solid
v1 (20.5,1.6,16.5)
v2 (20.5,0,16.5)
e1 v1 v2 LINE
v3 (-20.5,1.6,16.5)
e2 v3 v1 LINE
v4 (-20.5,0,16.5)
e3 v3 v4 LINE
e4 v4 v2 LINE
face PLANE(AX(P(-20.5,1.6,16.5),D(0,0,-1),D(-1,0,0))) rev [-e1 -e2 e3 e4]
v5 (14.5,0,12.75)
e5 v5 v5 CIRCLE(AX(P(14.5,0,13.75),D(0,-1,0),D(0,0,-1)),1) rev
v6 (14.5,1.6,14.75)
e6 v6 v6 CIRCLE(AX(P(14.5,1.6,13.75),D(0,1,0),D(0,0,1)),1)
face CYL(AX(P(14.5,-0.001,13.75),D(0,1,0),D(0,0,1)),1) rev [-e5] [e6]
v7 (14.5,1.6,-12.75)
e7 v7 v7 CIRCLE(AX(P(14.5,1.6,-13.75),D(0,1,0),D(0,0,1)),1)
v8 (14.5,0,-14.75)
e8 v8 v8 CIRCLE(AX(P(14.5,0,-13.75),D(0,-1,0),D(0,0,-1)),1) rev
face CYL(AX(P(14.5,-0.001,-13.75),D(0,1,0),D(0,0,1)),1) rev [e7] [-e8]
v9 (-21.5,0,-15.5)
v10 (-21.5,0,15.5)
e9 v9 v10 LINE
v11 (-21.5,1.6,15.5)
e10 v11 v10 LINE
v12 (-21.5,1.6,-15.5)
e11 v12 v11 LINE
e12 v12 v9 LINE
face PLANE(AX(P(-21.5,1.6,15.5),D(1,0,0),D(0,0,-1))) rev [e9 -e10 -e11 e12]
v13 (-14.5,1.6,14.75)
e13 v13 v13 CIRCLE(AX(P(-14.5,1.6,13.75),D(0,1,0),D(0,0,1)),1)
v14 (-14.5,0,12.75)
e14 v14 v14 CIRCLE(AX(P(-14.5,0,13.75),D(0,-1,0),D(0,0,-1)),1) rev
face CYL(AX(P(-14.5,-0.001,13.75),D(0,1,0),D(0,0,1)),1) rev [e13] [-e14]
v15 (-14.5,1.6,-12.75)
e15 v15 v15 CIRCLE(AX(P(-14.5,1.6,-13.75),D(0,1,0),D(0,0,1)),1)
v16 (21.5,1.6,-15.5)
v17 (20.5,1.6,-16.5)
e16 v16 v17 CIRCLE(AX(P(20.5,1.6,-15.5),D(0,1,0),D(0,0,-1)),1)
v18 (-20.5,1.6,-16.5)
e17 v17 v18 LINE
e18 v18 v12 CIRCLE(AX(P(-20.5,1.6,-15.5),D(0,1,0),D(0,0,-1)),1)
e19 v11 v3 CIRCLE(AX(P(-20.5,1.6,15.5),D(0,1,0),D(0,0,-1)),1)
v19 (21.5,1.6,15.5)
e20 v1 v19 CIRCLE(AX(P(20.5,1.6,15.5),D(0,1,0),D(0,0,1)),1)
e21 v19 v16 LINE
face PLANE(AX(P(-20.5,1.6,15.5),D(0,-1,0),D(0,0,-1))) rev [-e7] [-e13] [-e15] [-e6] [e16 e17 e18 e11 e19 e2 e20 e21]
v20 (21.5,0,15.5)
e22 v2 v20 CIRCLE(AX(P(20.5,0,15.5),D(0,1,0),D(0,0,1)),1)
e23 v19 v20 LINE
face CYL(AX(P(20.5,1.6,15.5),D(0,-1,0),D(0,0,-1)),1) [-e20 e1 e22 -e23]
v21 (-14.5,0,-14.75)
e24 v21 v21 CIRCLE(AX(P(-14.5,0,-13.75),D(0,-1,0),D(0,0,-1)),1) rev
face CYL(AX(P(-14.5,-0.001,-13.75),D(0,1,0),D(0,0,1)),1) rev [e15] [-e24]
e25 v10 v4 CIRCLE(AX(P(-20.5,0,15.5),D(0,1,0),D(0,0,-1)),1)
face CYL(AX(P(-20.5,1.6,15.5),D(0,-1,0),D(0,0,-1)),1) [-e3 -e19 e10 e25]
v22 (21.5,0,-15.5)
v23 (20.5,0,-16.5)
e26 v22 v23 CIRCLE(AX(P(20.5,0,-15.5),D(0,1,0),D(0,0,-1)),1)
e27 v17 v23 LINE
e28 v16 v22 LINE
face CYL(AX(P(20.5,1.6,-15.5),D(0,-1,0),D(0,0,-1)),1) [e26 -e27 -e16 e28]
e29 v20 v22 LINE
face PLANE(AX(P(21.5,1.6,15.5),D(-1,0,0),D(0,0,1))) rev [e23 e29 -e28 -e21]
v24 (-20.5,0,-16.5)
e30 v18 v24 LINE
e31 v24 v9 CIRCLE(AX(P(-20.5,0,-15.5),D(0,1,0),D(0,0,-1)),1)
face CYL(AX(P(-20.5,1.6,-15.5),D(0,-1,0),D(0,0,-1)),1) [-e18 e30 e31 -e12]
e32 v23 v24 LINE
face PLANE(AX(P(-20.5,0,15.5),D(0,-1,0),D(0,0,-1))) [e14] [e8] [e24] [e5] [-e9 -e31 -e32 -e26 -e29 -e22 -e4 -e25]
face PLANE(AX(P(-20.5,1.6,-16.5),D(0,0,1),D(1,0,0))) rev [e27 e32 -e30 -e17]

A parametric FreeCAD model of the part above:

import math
import FreeCAD as App
import Part
import Sketcher

doc = App.newDocument("Part")
body = doc.addObject("PartDesign::Body", "Body")

# Sketch on XZ plane
sketch1 = body.newObject("Sketcher::SketchObject", "Sketch")
sketch1.AttachmentSupport = (doc.getObject("XZ_Plane"), [""])
sketch1.MapMode = "FlatFace"
sketch1.addGeometry([
    Part.LineSegment(App.Vector(-20.5, 16.5, 0), App.Vector(20.5, 16.5, 0)),  # 0
    Part.ArcOfCircle(Part.Circle(App.Vector(20.5, 15.5, 0), App.Vector(0, 0, 1), 1), math.radians(0), math.radians(90)),  # 1
    Part.LineSegment(App.Vector(21.5, 15.5, 0), App.Vector(21.5, -15.5, 0)),  # 2
    Part.ArcOfCircle(Part.Circle(App.Vector(20.5, -15.5, 0), App.Vector(0, 0, 1), 1), math.radians(-90), math.radians(0)),  # 3
    Part.LineSegment(App.Vector(20.5, -16.5, 0), App.Vector(-20.5, -16.5, 0)),  # 4
    Part.ArcOfCircle(Part.Circle(App.Vector(-20.5, -15.5, 0), App.Vector(0, 0, 1), 1), math.radians(-180), math.radians(-90)),  # 5
    Part.LineSegment(App.Vector(-21.5, -15.5, 0), App.Vector(-21.5, 15.5, 0)),  # 6
    Part.ArcOfCircle(Part.Circle(App.Vector(-20.5, 15.5, 0), App.Vector(0, 0, 1), 1), math.radians(90), math.radians(180)),  # 7
], False)
sketch1.addConstraint([
    Sketcher.Constraint("Tangent", 0, 2, 1, 2),
    Sketcher.Constraint("Tangent", 1, 1, 2, 1),
    Sketcher.Constraint("Tangent", 2, 2, 3, 2),
    Sketcher.Constraint("Tangent", 3, 1, 4, 1),
    Sketcher.Constraint("Tangent", 4, 2, 5, 2),
    Sketcher.Constraint("Tangent", 5, 1, 6, 1),
    Sketcher.Constraint("Tangent", 6, 2, 7, 2),
    Sketcher.Constraint("Tangent", 7, 1, 0, 1),
    Sketcher.Constraint("Horizontal", 0),
    Sketcher.Constraint("Vertical", 2),
    Sketcher.Constraint("Horizontal", 4),
    Sketcher.Constraint("Vertical", 6),
    Sketcher.Constraint("Equal", 1, 3),
    Sketcher.Constraint("Equal", 3, 5),
    Sketcher.Constraint("Equal", 5, 7),
    Sketcher.Constraint("Symmetric", 1, 3, 5, 3, -1, 1),
    Sketcher.Constraint("Radius", 1, 1.0),
    Sketcher.Constraint("DistanceX", 0, 1, 0, 2, 41.0),
    Sketcher.Constraint("DistanceY", 2, 2, 2, 1, 31.0),
])
pad1 = body.newObject("PartDesign::Pad", "Pad")
pad1.Profile = sketch1
pad1.Length = 1.6
pad1.Reversed = True

# Sketch on XZ plane
sketch2 = body.newObject("Sketcher::SketchObject", "Sketch001")
sketch2.AttachmentSupport = (doc.getObject("XZ_Plane"), [""])
sketch2.MapMode = "FlatFace"
sketch2.AttachmentOffset = App.Placement(App.Vector(0, 0, -1.6), App.Rotation())
sketch2.addGeometry(Part.Circle(App.Vector(-14.5, -13.8, 0), App.Vector(0, 0, 1), 1), False)
sketch2.addConstraint([
    Sketcher.Constraint("Diameter", 0, 2.0),
    Sketcher.Constraint("DistanceX", 0, 3, -1, 1, 14.5),
    Sketcher.Constraint("DistanceY", 0, 3, -1, 1, 13.75),
])
pocket1 = body.newObject("PartDesign::Pocket", "Pocket")
pocket1.Profile = sketch2
pocket1.Type = "UpToFirst"
pocket1.Reversed = True

# Sketch on XZ plane
sketch3 = body.newObject("Sketcher::SketchObject", "Sketch002")
sketch3.AttachmentSupport = (doc.getObject("XZ_Plane"), [""])
sketch3.MapMode = "FlatFace"
sketch3.AttachmentOffset = App.Placement(App.Vector(0, 0, -1.6), App.Rotation())
sketch3.addGeometry(Part.Circle(App.Vector(14.5, -13.8, 0), App.Vector(0, 0, 1), 1), False)
sketch3.addConstraint([
    Sketcher.Constraint("Diameter", 0, 2.0),
    Sketcher.Constraint("DistanceX", -1, 1, 0, 3, 14.5),
    Sketcher.Constraint("DistanceY", 0, 3, -1, 1, 13.75),
])
pocket2 = body.newObject("PartDesign::Pocket", "Pocket001")
pocket2.Profile = sketch3
pocket2.Type = "UpToFirst"
pocket2.Reversed = True

# Sketch on XZ plane
sketch4 = body.newObject("Sketcher::SketchObject", "Sketch003")
sketch4.AttachmentSupport = (doc.getObject("XZ_Plane"), [""])
sketch4.MapMode = "FlatFace"
sketch4.AttachmentOffset = App.Placement(App.Vector(0, 0, -1.6), App.Rotation())
sketch4.addGeometry(Part.Circle(App.Vector(14.5, 13.8, 0), App.Vector(0, 0, 1), 1), False)
sketch4.addConstraint([
    Sketcher.Constraint("Diameter", 0, 2.0),
    Sketcher.Constraint("DistanceX", -1, 1, 0, 3, 14.5),
    Sketcher.Constraint("DistanceY", -1, 1, 0, 3, 13.75),
])
pocket3 = body.newObject("PartDesign::Pocket", "Pocket002")
pocket3.Profile = sketch4
pocket3.Type = "UpToFirst"
pocket3.Reversed = True

# Sketch on XZ plane
sketch5 = body.newObject("Sketcher::SketchObject", "Sketch004")
sketch5.AttachmentSupport = (doc.getObject("XZ_Plane"), [""])
sketch5.MapMode = "FlatFace"
sketch5.AttachmentOffset = App.Placement(App.Vector(0, 0, -1.6), App.Rotation())
sketch5.addGeometry(Part.Circle(App.Vector(-14.5, 13.8, 0), App.Vector(0, 0, 1), 1), False)
sketch5.addConstraint([
    Sketcher.Constraint("Diameter", 0, 2.0),
    Sketcher.Constraint("DistanceX", 0, 3, -1, 1, 14.5),
    Sketcher.Constraint("DistanceY", -1, 1, 0, 3, 13.75),
])
pocket4 = body.newObject("PartDesign::Pocket", "Pocket003")
pocket4.Profile = sketch5
pocket4.Type = "UpToFirst"
pocket4.Reversed = True

doc.recompute()
